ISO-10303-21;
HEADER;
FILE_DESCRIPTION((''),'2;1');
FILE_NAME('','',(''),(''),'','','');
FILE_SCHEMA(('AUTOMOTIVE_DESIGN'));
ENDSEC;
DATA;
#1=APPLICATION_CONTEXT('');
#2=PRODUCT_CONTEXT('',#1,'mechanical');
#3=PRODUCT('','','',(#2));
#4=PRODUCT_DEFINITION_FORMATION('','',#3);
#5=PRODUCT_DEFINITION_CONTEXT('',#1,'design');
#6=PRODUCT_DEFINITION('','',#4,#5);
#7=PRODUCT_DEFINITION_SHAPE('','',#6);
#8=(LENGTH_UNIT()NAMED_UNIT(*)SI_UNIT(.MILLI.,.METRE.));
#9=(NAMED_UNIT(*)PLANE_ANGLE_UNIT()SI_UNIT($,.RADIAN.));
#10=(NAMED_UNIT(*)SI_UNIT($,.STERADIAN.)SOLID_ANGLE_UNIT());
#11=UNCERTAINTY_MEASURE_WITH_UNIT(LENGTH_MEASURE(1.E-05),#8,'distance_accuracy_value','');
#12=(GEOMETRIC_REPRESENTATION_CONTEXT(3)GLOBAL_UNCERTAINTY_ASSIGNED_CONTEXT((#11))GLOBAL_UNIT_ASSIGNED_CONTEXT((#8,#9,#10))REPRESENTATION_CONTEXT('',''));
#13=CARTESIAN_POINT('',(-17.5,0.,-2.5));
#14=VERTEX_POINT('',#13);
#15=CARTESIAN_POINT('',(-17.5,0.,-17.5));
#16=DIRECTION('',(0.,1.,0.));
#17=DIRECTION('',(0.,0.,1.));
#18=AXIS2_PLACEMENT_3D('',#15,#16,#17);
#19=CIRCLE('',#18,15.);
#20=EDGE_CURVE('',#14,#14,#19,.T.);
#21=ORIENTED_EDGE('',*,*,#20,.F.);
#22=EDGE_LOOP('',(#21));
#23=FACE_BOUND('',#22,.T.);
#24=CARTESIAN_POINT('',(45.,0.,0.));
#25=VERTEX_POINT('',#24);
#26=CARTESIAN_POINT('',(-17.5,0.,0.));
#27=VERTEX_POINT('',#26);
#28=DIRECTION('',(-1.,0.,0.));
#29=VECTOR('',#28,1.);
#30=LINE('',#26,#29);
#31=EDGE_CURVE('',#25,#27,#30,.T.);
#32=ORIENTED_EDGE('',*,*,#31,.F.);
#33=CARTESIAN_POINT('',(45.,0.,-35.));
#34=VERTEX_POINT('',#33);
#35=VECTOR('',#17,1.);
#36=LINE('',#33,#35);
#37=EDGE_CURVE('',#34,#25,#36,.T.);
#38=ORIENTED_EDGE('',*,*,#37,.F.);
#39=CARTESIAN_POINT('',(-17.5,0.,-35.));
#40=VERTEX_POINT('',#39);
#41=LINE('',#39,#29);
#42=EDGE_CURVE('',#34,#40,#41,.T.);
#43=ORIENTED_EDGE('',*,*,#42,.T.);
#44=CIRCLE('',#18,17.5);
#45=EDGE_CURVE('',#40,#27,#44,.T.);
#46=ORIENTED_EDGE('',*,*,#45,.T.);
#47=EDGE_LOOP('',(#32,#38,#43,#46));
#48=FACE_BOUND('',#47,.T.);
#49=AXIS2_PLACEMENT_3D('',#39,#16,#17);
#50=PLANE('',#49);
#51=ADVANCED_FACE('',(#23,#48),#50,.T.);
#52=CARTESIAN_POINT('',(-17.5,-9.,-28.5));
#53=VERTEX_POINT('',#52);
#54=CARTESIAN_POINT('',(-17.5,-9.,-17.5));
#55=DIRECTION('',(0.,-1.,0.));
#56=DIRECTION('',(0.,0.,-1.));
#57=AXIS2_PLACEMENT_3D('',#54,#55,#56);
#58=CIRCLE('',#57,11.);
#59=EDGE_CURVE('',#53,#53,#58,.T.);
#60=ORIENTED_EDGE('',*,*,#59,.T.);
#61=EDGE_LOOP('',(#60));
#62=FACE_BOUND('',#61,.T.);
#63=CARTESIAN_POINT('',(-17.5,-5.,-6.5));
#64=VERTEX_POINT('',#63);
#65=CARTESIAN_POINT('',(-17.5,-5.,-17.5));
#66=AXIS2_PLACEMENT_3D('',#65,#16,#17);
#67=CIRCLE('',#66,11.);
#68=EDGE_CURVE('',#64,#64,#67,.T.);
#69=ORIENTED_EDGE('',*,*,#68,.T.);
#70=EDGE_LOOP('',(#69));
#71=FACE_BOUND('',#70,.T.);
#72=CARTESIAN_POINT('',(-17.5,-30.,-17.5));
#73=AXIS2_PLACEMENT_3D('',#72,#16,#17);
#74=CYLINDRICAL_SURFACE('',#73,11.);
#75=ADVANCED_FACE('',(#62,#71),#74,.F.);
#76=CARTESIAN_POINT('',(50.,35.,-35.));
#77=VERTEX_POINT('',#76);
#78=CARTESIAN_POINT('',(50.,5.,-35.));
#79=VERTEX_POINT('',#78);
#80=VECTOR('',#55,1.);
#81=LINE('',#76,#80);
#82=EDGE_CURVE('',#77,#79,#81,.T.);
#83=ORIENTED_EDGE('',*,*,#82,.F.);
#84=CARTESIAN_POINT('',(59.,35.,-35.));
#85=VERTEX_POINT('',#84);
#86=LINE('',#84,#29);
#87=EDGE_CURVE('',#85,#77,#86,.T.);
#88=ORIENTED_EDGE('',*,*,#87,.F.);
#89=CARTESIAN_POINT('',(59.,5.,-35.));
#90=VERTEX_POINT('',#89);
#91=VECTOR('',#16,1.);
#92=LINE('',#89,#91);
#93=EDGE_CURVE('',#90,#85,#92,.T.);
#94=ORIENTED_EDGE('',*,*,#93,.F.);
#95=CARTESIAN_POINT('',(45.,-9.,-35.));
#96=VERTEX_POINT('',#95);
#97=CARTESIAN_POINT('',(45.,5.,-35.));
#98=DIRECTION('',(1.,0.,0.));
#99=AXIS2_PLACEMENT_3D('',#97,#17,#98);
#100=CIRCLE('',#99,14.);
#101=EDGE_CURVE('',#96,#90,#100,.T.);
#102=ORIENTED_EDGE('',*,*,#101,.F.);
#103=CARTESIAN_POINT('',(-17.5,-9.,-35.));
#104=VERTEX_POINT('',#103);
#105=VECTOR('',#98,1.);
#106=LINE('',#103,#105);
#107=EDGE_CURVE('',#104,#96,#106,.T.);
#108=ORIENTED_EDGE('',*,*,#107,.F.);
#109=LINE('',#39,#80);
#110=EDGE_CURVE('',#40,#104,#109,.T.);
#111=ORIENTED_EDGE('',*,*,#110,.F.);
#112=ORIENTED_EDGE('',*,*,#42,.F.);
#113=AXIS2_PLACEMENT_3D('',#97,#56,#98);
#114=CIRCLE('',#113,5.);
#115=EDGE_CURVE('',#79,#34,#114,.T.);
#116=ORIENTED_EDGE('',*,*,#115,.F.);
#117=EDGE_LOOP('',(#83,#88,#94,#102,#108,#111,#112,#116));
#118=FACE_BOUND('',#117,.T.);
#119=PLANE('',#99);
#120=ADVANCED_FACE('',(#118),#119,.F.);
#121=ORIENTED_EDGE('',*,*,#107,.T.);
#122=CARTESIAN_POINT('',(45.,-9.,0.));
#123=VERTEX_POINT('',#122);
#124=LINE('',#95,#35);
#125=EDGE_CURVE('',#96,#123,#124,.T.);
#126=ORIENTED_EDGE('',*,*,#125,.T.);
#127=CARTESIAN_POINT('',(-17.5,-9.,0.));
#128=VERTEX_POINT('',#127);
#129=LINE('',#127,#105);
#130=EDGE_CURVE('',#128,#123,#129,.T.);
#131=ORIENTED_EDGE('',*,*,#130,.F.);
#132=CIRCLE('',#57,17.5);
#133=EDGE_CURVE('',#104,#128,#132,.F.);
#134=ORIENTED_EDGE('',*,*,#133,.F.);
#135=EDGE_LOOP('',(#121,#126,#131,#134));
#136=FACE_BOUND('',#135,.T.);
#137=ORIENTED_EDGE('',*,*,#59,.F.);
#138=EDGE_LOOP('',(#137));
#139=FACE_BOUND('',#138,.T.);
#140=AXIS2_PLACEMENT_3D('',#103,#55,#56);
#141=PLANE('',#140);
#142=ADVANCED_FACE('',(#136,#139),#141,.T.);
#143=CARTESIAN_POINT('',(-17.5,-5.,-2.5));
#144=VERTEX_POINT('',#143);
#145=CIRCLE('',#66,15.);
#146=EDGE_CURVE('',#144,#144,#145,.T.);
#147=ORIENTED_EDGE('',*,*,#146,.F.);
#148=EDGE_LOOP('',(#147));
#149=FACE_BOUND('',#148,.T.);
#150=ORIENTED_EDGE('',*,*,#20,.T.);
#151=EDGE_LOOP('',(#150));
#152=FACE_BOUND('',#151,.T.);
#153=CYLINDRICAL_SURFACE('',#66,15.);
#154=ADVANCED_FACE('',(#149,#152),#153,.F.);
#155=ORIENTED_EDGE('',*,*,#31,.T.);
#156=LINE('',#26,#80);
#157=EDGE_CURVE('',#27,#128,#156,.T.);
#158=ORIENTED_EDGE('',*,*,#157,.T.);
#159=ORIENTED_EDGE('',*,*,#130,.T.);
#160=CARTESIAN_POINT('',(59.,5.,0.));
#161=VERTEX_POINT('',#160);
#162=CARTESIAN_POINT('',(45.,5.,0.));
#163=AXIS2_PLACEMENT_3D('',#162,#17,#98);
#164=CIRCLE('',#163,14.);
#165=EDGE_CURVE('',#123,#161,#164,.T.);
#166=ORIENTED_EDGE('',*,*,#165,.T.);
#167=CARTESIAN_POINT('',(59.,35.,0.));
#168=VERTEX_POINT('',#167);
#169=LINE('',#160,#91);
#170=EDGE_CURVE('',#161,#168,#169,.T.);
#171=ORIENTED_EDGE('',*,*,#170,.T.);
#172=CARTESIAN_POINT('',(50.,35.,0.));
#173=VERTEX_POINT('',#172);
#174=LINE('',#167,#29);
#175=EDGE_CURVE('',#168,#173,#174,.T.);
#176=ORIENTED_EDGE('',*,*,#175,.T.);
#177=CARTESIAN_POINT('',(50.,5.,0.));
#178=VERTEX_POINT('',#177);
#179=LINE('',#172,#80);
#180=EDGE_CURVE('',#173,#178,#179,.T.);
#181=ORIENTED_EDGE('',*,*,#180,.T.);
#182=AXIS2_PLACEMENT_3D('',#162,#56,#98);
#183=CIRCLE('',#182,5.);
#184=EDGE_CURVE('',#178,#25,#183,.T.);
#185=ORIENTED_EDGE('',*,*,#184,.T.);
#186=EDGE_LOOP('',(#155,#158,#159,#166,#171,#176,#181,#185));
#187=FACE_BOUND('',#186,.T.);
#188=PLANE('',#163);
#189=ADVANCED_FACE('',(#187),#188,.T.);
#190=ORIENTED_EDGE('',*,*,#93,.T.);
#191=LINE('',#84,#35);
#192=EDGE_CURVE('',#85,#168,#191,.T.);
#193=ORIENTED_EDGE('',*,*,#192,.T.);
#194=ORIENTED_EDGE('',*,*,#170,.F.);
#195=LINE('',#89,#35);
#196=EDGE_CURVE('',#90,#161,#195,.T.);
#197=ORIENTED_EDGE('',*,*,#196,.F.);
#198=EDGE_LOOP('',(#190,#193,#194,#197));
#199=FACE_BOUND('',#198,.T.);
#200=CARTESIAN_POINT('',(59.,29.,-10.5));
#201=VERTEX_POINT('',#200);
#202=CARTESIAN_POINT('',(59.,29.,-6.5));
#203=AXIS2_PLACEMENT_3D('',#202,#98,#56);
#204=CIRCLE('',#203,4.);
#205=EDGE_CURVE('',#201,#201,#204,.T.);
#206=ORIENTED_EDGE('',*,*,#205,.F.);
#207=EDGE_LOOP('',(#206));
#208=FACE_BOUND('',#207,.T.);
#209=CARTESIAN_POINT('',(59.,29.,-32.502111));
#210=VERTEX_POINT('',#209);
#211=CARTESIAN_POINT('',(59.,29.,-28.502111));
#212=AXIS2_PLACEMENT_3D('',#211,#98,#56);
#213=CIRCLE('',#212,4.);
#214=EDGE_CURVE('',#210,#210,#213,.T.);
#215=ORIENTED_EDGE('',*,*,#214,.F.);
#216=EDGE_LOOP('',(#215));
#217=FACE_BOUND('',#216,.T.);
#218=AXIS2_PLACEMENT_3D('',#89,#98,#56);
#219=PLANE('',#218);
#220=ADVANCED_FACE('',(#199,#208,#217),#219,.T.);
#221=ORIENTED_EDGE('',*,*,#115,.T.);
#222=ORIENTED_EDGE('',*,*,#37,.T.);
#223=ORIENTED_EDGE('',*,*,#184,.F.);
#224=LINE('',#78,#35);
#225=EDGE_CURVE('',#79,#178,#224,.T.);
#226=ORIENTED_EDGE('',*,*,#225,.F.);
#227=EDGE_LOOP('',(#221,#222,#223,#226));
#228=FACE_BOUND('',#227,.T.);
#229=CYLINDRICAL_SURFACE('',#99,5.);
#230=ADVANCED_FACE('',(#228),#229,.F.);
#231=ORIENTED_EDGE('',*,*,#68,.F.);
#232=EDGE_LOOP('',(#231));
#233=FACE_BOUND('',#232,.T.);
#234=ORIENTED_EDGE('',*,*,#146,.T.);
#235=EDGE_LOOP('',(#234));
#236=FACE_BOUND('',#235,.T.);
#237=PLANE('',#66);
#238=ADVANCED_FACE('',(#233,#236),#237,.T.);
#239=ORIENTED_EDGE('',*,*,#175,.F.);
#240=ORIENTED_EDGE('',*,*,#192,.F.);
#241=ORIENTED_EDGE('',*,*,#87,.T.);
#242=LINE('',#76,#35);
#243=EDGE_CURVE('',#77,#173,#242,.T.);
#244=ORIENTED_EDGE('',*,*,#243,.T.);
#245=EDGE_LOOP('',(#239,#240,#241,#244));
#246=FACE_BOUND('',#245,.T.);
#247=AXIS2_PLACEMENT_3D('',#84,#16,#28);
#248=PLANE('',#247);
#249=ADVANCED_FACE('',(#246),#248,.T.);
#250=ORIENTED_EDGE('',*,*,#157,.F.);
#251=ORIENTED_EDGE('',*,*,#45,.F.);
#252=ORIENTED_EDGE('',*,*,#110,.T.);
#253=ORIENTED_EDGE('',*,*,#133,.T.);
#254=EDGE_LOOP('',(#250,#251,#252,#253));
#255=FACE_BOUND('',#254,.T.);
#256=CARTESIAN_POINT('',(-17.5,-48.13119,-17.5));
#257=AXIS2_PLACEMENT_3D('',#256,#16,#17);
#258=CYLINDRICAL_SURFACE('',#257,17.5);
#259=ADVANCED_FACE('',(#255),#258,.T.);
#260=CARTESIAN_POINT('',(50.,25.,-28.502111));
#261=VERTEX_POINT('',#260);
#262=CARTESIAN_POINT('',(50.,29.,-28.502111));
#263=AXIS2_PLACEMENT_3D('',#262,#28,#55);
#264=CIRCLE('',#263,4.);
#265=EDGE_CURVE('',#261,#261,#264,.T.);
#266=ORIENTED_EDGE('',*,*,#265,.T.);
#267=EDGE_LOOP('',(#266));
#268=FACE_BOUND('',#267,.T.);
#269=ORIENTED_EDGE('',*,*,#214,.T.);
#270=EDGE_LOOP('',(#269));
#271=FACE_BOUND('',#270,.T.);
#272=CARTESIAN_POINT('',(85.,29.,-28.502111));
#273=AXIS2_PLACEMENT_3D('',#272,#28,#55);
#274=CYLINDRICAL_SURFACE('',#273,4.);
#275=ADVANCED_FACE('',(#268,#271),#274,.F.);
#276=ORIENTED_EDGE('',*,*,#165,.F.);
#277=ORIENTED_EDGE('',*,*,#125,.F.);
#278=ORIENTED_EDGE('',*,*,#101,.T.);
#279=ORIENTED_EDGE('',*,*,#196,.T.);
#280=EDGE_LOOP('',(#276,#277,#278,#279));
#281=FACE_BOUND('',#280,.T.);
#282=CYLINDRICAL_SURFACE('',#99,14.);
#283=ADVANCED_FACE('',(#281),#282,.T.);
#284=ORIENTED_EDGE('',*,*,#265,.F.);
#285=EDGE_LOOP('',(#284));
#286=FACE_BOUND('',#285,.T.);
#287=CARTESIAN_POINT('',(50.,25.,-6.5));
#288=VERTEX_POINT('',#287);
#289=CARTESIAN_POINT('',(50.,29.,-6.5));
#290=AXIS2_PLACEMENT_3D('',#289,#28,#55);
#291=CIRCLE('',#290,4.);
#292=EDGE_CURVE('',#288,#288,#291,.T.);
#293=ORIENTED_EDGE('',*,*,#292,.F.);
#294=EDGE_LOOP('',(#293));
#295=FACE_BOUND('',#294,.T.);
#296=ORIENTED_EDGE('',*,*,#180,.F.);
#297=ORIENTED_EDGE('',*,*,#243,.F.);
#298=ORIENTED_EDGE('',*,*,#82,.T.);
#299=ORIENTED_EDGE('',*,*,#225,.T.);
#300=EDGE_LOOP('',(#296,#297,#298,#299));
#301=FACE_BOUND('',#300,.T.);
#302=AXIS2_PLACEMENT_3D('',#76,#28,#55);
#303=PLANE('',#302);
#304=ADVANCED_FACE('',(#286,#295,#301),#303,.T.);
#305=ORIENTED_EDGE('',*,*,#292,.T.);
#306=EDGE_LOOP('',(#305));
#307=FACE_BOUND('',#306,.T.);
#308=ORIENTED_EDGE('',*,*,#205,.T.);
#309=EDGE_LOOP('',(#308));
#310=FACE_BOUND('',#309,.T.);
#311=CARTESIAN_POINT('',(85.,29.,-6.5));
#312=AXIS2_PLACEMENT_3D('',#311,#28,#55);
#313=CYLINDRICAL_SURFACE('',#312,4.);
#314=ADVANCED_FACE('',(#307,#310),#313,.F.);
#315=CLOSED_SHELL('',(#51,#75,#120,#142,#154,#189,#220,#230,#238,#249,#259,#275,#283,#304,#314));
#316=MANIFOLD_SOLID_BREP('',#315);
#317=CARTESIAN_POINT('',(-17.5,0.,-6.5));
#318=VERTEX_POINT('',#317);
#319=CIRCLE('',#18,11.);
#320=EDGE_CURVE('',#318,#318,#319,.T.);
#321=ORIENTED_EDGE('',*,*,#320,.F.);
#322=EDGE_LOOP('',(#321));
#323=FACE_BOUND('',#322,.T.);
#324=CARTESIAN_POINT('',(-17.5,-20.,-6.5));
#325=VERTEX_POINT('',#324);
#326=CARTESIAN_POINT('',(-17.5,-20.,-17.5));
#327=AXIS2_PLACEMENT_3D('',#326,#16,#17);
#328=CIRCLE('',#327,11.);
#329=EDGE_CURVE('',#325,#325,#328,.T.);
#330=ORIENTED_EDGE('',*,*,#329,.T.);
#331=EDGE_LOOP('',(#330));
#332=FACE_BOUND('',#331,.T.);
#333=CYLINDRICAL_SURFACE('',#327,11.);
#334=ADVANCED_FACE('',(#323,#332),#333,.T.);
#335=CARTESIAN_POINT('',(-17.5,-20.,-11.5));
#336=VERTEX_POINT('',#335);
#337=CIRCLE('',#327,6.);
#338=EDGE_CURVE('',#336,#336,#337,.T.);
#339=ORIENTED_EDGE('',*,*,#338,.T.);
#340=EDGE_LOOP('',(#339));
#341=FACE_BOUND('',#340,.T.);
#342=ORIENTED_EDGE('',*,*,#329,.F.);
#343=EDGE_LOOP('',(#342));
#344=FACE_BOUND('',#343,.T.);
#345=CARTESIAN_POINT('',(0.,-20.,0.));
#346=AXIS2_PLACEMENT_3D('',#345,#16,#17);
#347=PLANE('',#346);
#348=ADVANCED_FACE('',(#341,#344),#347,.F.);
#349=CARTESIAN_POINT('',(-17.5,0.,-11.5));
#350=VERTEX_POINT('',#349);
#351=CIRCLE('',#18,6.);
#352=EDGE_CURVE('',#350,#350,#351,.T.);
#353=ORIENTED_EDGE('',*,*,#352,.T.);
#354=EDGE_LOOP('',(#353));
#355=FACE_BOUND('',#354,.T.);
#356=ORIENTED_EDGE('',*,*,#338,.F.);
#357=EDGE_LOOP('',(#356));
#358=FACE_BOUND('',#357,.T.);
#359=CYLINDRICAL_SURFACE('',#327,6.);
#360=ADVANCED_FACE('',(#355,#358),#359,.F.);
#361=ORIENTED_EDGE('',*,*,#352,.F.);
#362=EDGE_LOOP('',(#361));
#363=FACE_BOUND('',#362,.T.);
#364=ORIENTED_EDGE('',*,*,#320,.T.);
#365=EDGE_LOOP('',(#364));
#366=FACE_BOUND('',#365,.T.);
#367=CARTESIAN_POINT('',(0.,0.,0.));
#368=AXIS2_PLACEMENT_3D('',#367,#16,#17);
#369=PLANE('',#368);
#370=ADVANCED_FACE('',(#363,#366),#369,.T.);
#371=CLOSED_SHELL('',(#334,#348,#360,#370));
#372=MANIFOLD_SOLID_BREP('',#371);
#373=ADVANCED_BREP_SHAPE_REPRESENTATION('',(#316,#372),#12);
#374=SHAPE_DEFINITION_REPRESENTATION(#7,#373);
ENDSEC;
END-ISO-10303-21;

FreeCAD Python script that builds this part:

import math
import FreeCAD as App
import Part
import Sketcher

doc = App.newDocument("Part")
body = doc.addObject("PartDesign::Body", "Body")

sketch1 = body.newObject("Sketcher::SketchObject", "Sketch")
sketch1.AttachmentSupport = (doc.getObject("XY_Plane"), [""])
sketch1.MapMode = "FlatFace"
sketch1.addGeometry([
    Part.LineSegment(App.Vector(-18, 0, 0), App.Vector(-18, -9, 0)),
    Part.LineSegment(App.Vector(-18, -9, 0), App.Vector(45, -9, 0)),
    Part.ArcOfCircle(Part.Circle(App.Vector(45, 5, 0), App.Vector(0, 0, 1), 14), math.radians(-90), math.radians(0)),
    Part.LineSegment(App.Vector(59, 5, 0), App.Vector(59, 35, 0)),
    Part.LineSegment(App.Vector(59, 35, 0), App.Vector(50, 35, 0)),
    Part.LineSegment(App.Vector(50, 35, 0), App.Vector(50, 5, 0)),
    Part.ArcOfCircle(Part.Circle(App.Vector(45, 5, 0), App.Vector(0, 0, 1), 5), math.radians(-90), math.radians(0)),
    Part.LineSegment(App.Vector(45, 0, 0), App.Vector(-18, 0, 0)),
], False)
sketch1.addConstraint([
    Sketcher.Constraint("Coincident", 0, 2, 1, 1),
    Sketcher.Constraint("Tangent", 1, 2, 2, 1),
    Sketcher.Constraint("Tangent", 2, 2, 3, 1),
    Sketcher.Constraint("Coincident", 3, 2, 4, 1),
    Sketcher.Constraint("Coincident", 4, 2, 5, 1),
    Sketcher.Constraint("Tangent", 5, 2, 6, 2),
    Sketcher.Constraint("Tangent", 6, 1, 7, 1),
    Sketcher.Constraint("Coincident", 7, 2, 0, 1),
    Sketcher.Constraint("Vertical", 0),
    Sketcher.Constraint("Horizontal", 1),
    Sketcher.Constraint("Vertical", 3),
    Sketcher.Constraint("Horizontal", 4),
    Sketcher.Constraint("Vertical", 5),
    Sketcher.Constraint("Horizontal", 7),
    Sketcher.Constraint("Coincident", 6, 3, 2, 3),
    Sketcher.Constraint("PointOnObject", 6, 1, -1),
    Sketcher.Constraint("Radius", 2, 14.0),
    Sketcher.Constraint("Radius", 6, 5.0),
    Sketcher.Constraint("DistanceY", 3, 1, 3, 2, 30.0),
    Sketcher.Constraint("DistanceX", 1, 1, 1, 2, 62.5),
    Sketcher.Constraint("DistanceX", -1, 1, 2, 3, 45.0),
])
pad1 = body.newObject("PartDesign::Pad", "Pad")
pad1.Profile = sketch1
pad1.Length = 35
pad1.Reversed = True

sketch2 = body.newObject("Sketcher::SketchObject", "Sketch001")
sketch2.AttachmentSupport = (doc.getObject("XZ_Plane"), [""])
sketch2.MapMode = "FlatFace"
sketch2.addGeometry([
    Part.LineSegment(App.Vector(-18, 0, 0), App.Vector(-18, -35, 0)),
    Part.ArcOfCircle(Part.Circle(App.Vector(-18, -18, 0), App.Vector(0, 0, 1), 18), math.radians(90), math.radians(270)),
], False)
sketch2.addConstraint([
    Sketcher.Constraint("Coincident", 0, 1, 1, 1),
    Sketcher.Constraint("Coincident", 1, 2, 0, 2),
    Sketcher.Constraint("Vertical", 0),
    Sketcher.Constraint("PointOnObject", 0, 1, -1),
    Sketcher.Constraint("Vertical", 1, 3, 0, 1),
    Sketcher.Constraint("Radius", 1, 17.5),
    Sketcher.Constraint("DistanceX", 1, 3, -1, 1, 17.5),
])
pad2 = body.newObject("PartDesign::Pad", "Pad001")
pad2.Profile = sketch2
pad2.Length = 9

sketch3 = body.newObject("Sketcher::SketchObject", "Sketch002")
sketch3.AttachmentSupport = (doc.getObject("YZ_Plane"), [""])
sketch3.MapMode = "FlatFace"
sketch3.AttachmentOffset = App.Placement(App.Vector(0, 0, 50), App.Rotation())
sketch3.addGeometry([
    Part.Circle(App.Vector(29, -28.5, 0), App.Vector(0, 0, 1), 4),
    Part.Circle(App.Vector(29, -6.5, 0), App.Vector(0, 0, 1), 4),
], False)
sketch3.addConstraint([
    Sketcher.Constraint("Equal", 0, 1),
    Sketcher.Constraint("Vertical", 0, 3, 1, 3),
    Sketcher.Constraint("Diameter", 0, 8.0),
    Sketcher.Constraint("DistanceX", -1, 1, 0, 3, 29.0),
    Sketcher.Constraint("DistanceY", 1, 3, -1, 1, 6.5),
    Sketcher.Constraint("DistanceY", 0, 3, -1, 1, 28.502111),
])
pocket1 = body.newObject("PartDesign::Pocket", "Pocket")
pocket1.Profile = sketch3
pocket1.Length = 35
pocket1.Reversed = True

sketch4 = body.newObject("Sketcher::SketchObject", "Sketch003")
sketch4.AttachmentSupport = (doc.getObject("XZ_Plane"), [""])
sketch4.MapMode = "FlatFace"
sketch4.addGeometry(Part.Circle(App.Vector(-18, -18, 0), App.Vector(0, 0, 1), 15), False)
sketch4.addConstraint([
    Sketcher.Constraint("Diameter", 0, 30.0),
    Sketcher.Constraint("DistanceX", 0, 3, -1, 1, 17.5),
    Sketcher.Constraint("DistanceY", 0, 3, -1, 1, 17.5),
])
pocket2 = body.newObject("PartDesign::Pocket", "Pocket001")
pocket2.Profile = sketch4
pocket2.Length = 5
pocket2.Reversed = True

sketch5 = body.newObject("Sketcher::SketchObject", "Sketch004")
sketch5.AttachmentSupport = (doc.getObject("XZ_Plane"), [""])
sketch5.MapMode = "FlatFace"
sketch5.AttachmentOffset = App.Placement(App.Vector(0, 0, 5), App.Rotation())
sketch5.addGeometry(Part.Circle(App.Vector(-18, -18, 0), App.Vector(0, 0, 1), 11), False)
sketch5.addConstraint([
    Sketcher.Constraint("Diameter", 0, 22.0),
    Sketcher.Constraint("DistanceX", 0, 3, -1, 1, 17.5),
    Sketcher.Constraint("DistanceY", 0, 3, -1, 1, 17.5),
])
pocket3 = body.newObject("PartDesign::Pocket", "Pocket002")
pocket3.Profile = sketch5
pocket3.Length = 25
pocket3.Reversed = True
body2 = doc.addObject("PartDesign::Body", "Body001")

sketch6 = body2.newObject("Sketcher::SketchObject", "Sketch005")
sketch6.AttachmentSupport = (doc.getObject("XZ_Plane001"), [""])
sketch6.MapMode = "FlatFace"
sketch6.addGeometry([
    Part.Circle(App.Vector(-18, -18, 0), App.Vector(0, 0, 1), 11),
    Part.Circle(App.Vector(-18, -18, 0), App.Vector(0, 0, 1), 6),
], False)
sketch6.addConstraint([
    Sketcher.Constraint("Coincident", 1, 3, 0, 3),
    Sketcher.Constraint("Diameter", 0, 22.0),
    Sketcher.Constraint("Diameter", 1, 12.0),
    Sketcher.Constraint("DistanceX", 0, 3, -1, 1, 17.5),
    Sketcher.Constraint("DistanceY", 0, 3, -1, 1, 17.5),
])
pad3 = body2.newObject("PartDesign::Pad", "Pad002")
pad3.Profile = sketch6
pad3.Length = 20

doc.recompute()
